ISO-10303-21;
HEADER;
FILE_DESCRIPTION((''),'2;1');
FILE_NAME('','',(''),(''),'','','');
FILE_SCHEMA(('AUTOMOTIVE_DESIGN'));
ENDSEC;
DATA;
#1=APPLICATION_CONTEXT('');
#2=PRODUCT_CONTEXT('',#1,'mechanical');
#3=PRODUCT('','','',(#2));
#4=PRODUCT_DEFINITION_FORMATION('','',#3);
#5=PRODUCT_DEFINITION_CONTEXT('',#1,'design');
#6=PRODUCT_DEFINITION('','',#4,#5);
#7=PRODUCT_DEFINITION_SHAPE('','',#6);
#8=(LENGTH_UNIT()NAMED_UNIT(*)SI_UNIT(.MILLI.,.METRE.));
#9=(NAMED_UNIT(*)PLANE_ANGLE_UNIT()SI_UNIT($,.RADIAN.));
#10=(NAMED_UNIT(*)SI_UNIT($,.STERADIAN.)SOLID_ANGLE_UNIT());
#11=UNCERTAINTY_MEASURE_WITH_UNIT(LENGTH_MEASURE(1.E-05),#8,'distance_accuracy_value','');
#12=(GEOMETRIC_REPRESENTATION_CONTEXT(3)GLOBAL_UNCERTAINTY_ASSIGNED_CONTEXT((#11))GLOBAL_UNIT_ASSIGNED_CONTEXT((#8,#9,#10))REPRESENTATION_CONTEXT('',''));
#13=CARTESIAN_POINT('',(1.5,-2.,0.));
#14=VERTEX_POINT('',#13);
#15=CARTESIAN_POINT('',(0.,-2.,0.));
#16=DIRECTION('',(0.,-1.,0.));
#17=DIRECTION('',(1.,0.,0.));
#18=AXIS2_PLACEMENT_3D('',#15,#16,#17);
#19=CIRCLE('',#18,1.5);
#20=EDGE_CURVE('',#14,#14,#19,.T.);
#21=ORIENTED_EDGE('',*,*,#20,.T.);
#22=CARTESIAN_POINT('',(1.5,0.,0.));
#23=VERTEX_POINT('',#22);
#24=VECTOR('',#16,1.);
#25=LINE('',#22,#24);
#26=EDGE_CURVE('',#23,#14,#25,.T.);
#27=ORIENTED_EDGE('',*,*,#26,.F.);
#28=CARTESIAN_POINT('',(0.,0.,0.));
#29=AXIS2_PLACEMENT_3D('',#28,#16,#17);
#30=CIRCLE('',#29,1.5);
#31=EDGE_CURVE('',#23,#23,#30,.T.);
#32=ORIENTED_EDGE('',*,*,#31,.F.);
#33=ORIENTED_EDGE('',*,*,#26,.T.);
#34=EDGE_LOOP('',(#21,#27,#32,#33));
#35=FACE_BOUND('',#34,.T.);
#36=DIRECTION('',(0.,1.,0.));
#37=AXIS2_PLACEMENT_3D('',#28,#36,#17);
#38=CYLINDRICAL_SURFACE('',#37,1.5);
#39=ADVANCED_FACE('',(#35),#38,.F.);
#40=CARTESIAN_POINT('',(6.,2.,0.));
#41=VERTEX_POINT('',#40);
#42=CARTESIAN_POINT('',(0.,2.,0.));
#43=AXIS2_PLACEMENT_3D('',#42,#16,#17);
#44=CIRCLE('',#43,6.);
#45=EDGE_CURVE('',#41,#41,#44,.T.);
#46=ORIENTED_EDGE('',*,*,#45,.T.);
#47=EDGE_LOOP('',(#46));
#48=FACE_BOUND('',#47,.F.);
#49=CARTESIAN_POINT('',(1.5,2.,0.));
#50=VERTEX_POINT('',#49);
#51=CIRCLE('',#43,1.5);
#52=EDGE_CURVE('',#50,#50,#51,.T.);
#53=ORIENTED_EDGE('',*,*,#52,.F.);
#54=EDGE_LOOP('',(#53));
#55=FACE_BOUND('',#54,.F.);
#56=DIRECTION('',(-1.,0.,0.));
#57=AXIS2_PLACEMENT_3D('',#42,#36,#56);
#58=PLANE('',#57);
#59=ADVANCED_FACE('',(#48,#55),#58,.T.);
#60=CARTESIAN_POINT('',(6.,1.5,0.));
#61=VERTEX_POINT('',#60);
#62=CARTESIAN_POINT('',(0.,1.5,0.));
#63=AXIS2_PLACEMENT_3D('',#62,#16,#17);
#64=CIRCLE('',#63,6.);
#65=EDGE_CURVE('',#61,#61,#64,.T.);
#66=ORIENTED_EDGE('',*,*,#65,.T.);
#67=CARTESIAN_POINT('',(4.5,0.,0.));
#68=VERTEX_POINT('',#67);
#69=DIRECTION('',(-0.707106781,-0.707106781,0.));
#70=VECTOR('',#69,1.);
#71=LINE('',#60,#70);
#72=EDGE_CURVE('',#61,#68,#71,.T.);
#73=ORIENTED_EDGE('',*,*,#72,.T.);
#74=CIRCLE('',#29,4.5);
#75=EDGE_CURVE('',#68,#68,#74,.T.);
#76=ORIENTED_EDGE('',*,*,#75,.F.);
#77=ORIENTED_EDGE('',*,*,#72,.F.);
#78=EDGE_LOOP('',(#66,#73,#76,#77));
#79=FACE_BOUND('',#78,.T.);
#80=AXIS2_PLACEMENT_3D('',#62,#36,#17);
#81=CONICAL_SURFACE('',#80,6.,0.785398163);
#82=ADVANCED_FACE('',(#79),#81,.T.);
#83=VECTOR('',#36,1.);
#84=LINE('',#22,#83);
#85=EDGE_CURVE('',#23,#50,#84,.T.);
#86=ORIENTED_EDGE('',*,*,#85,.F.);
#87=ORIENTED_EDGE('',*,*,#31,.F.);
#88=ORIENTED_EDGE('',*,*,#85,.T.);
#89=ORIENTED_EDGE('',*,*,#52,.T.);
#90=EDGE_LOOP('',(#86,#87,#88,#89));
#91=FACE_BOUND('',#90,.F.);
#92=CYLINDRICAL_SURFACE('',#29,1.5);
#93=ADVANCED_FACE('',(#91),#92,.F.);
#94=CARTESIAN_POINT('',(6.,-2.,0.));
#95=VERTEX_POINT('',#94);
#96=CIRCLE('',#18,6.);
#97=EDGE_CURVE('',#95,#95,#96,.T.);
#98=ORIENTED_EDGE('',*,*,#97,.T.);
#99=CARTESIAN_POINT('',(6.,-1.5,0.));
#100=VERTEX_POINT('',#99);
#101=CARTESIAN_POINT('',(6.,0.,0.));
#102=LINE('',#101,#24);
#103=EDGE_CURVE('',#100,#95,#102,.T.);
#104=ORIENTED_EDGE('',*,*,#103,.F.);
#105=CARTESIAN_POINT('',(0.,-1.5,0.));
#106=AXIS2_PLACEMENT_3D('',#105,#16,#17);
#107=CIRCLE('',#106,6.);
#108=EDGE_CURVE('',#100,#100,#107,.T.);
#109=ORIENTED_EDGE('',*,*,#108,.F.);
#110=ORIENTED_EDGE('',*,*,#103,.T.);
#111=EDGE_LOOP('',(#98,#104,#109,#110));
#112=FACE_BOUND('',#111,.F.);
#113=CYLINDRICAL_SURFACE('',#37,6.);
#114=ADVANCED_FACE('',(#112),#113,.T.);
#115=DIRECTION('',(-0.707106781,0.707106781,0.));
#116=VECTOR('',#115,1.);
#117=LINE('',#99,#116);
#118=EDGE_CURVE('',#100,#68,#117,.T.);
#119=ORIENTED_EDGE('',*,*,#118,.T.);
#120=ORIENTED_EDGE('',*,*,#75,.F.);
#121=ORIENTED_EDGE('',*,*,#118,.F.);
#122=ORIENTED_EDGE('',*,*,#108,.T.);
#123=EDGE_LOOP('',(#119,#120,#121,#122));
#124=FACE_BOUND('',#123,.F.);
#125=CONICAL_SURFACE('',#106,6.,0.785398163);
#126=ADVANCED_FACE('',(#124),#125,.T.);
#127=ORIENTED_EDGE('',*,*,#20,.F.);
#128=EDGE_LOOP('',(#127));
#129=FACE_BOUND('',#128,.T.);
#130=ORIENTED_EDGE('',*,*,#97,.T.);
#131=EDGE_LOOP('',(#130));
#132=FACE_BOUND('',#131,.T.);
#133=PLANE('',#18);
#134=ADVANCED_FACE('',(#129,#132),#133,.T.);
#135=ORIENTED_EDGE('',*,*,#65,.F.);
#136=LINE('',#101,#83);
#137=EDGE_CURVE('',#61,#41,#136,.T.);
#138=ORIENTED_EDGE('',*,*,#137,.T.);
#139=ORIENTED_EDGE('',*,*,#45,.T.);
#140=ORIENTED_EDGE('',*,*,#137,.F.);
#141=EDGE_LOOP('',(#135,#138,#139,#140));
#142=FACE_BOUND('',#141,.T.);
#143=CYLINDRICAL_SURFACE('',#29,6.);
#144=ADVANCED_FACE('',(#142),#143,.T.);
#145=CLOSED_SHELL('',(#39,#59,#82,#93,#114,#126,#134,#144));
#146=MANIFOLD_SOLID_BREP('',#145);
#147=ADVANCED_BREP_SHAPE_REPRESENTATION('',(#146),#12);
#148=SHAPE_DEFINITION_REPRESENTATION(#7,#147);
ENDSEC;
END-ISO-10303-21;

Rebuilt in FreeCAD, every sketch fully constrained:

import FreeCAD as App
import Part
import Sketcher


def edges_at(feature, points):
    """Names of the edges that pass closest to the given points."""
    edges = feature.Shape.Edges
    near = lambda p: min(range(len(edges)), key=lambda i: edges[i].distToShape(Part.Vertex(*p))[0])
    return sorted({f"Edge{near(p) + 1}" for p in points})

doc = App.newDocument("Part")
params = doc.addObject("Spreadsheet::Sheet", "Params")
for row, (alias, value) in enumerate([
    ("sketch1_diameter", "12 mm"),
    ("sketch1_diameter2", "3 mm"),
    ("pad1_length", "2 mm"),
    ("chamfer_size", "1.5 mm"),
], start=1):
    params.set(f"A{row}", alias)
    params.set(f"B{row}", "=" + value)
    params.setAlias(f"B{row}", alias)

body = doc.addObject("PartDesign::Body", "Body")

# Sketch on XZ plane
sketch1 = body.newObject("Sketcher::SketchObject", "Sketch")
sketch1.AttachmentSupport = (doc.getObject("XZ_Plane"), [""])
sketch1.MapMode = "FlatFace"
sketch1.addGeometry([
    Part.Circle(App.Vector(0, 0, 0), App.Vector(0, 0, 1), 6),
    Part.Circle(App.Vector(0, 0, 0), App.Vector(0, 0, 1), 1.5),
], False)
sketch1.addConstraint([
    Sketcher.Constraint("Coincident", 0, 3, -1, 1),
    Sketcher.Constraint("Coincident", 1, 3, -1, 1),
    Sketcher.Constraint("Diameter", 0, 12.0),
    Sketcher.Constraint("Diameter", 1, 3.0),
])
sketch1.setExpression("Constraints[2]", "Params.sketch1_diameter")
sketch1.setExpression("Constraints[3]", "Params.sketch1_diameter2")
pad1 = body.newObject("PartDesign::Pad", "Pad")
pad1.Profile = sketch1
pad1.setExpression("Length", "Params.pad1_length")
doc.recompute()

chamfer = body.newObject("PartDesign::Chamfer", "Chamfer")
chamfer.Base = (pad1, edges_at(pad1, [(-6, 0, 0)]))
chamfer.setExpression("Size", "Params.chamfer_size")
body2 = doc.addObject("PartDesign::Body", "Body001")
doc.recompute()

body2.BaseFeature = body
doc.recompute()

mirroring = doc.addObject("Part::Mirroring", "Mirroring")
mirroring.Source = body
mirroring.Base = App.Vector(0, 0, 0)
mirroring.Normal = App.Vector(0, -1, 0)
body3 = doc.addObject("PartDesign::Body", "Body002")
body3.BaseFeature = mirroring
boolean = body2.newObject("PartDesign::Boolean", "Boolean")
boolean.Type = "Fuse"
boolean.addObjects([body3])
doc.recompute()
mirroring.Visibility = False

doc.recompute()
